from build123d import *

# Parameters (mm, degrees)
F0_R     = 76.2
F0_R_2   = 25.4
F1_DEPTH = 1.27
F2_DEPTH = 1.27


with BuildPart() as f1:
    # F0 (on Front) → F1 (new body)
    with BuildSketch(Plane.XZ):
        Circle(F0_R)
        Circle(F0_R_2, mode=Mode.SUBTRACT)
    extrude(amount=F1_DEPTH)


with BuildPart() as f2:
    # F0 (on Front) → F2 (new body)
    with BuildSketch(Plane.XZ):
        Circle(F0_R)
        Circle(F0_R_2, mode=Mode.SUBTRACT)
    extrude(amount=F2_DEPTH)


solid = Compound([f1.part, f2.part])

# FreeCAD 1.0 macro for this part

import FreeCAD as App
import Part
import Sketcher

V = App.Vector
Q = App.Units.Quantity

doc = App.newDocument("Part")
body = doc.addObject("PartDesign::Body", "Body")

# Sketch on XZ plane
sketch1 = doc.addObject("Sketcher::SketchObject", "Sketch")
body.addObject(sketch1)
sketch1.AttachmentSupport = (doc.XZ_Plane, [""])
sketch1.MapMode = "FlatFace"
sketch1.addGeometry(Part.Circle(V(0, 0, 0), V(0, 0, 1), 76.2), False)
sketch1.addGeometry(Part.Circle(V(0, 0, 0), V(0, 0, 1), 25.4), False)
sketch1.addConstraint(Sketcher.Constraint("Coincident", 0, 3, -1, 1))
sketch1.addConstraint(Sketcher.Constraint("Coincident", 1, 3, -1, 1))
sketch1.addConstraint(Sketcher.Constraint("Diameter", 0, Q("6 in")))
sketch1.addConstraint(Sketcher.Constraint("Diameter", 1, Q("2 in")))
pad1 = doc.addObject("PartDesign::Pad", "Pad")
body.addObject(pad1)
pad1.Profile = sketch1
pad1.Length = Q("0.05 in")
body2 = doc.addObject("PartDesign::Body", "Body001")

# Sketch on XZ plane
sketch2 = doc.addObject("Sketcher::SketchObject", "Sketch001")
body2.addObject(sketch2)
sketch2.AttachmentSupport = (doc.getObject("XZ_Plane001"), [""])
sketch2.MapMode = "FlatFace"
sketch2.addGeometry(Part.Circle(V(0, 0, 0), V(0, 0, 1), 76.2), False)
sketch2.addGeometry(Part.Circle(V(0, 0, 0), V(0, 0, 1), 25.4), False)
sketch2.addConstraint(Sketcher.Constraint("Coincident", 0, 3, -1, 1))
sketch2.addConstraint(Sketcher.Constraint("Coincident", 1, 3, -1, 1))
sketch2.addConstraint(Sketcher.Constraint("Diameter", 0, Q("6 in")))
sketch2.addConstraint(Sketcher.Constraint("Diameter", 1, Q("2 in")))
pad2 = doc.addObject("PartDesign::Pad", "Pad001")
body2.addObject(pad2)
pad2.Profile = sketch2
pad2.Length = Q("0.05 in")

doc.recompute()
